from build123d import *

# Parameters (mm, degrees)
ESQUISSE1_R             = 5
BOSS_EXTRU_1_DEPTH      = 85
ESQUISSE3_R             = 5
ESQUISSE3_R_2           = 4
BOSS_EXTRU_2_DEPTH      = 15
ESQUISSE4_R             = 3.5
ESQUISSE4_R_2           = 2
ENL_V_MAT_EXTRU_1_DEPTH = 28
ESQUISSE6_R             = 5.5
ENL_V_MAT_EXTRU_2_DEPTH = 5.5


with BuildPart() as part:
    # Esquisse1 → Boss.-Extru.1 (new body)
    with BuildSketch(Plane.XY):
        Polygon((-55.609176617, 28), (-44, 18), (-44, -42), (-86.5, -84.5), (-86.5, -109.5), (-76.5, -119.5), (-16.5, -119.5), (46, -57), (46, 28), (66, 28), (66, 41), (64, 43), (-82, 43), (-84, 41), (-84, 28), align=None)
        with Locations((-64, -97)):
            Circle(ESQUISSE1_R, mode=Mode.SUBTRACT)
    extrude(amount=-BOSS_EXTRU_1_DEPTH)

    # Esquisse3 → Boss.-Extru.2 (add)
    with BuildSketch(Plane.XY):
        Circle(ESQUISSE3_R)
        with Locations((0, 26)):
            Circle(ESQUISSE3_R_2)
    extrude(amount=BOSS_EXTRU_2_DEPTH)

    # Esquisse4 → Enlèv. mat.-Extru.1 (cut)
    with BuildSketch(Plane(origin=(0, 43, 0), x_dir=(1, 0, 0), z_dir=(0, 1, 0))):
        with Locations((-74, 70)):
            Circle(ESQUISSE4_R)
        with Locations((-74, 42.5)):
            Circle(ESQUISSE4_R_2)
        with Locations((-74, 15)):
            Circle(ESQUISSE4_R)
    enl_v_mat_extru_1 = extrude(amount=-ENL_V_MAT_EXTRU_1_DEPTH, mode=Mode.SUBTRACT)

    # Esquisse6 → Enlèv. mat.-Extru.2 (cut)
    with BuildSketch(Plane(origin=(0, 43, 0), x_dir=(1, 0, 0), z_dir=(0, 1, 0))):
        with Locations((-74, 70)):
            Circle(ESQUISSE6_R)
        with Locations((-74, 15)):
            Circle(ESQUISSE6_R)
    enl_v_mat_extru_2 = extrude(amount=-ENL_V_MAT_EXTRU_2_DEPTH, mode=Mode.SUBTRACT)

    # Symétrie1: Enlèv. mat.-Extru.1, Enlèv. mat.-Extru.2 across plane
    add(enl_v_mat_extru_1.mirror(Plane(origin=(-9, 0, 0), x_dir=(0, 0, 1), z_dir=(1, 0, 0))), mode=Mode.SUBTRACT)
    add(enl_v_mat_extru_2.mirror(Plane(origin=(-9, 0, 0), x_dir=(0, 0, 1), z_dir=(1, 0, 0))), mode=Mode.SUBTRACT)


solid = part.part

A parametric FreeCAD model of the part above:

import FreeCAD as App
import Part
import Sketcher

V = App.Vector


def add_polygon(sketch, points):
    """Adds a closed chain of lines whose ends are joined by coincident constraints."""
    first, n = sketch.GeometryCount, len(points)
    for a, b in zip(points, points[1:] + points[:1]):
        sketch.addGeometry(Part.LineSegment(App.Vector(*a, 0), App.Vector(*b, 0)), False)
    for i in range(n):
        sketch.addConstraint(Sketcher.Constraint("Coincident", first + i, 2, first + (i + 1) % n, 1))

doc = App.newDocument("Part")
params = doc.addObject("Spreadsheet::Sheet", "Params")
for row, (alias, value) in enumerate([
    ("sketch1_diameter", "10 mm"),
    ("sketch1_width", "60 mm"),
    ("sketch1_width2", "20 mm"),
    ("sketch1_width3", "146 mm"),
    ("sketch1_height", "25 mm"),
    ("pad1_length", "85 mm"),
    ("sketch2_diameter", "10 mm"),
    ("sketch2_diameter2", "8 mm"),
    ("pad2_length", "15 mm"),
    ("sketch3_diameter", "7 mm"),
    ("sketch3_diameter2", "4 mm"),
    ("pocket1_length", "28 mm"),
    ("sketch4_diameter", "11 mm"),
    ("pocket2_length", "5.5 mm"),
], start=1):
    params.set(f"A{row}", alias)
    params.set(f"B{row}", "=" + value)
    params.setAlias(f"B{row}", alias)

body = doc.addObject("PartDesign::Body", "Body")

sketch1 = body.newObject("Sketcher::SketchObject", "Sketch")
sketch1.AttachmentSupport = (doc.getObject("XY_Plane"), [""])
sketch1.MapMode = "FlatFace"
add_polygon(sketch1, [(-55.609177, 28), (-44, 18), (-44, -42), (-86.5, -84.5), (-86.5, -109.5), (-76.5, -119.5), (-16.5, -119.5), (46, -57), (46, 28), (66, 28), (66, 41), (64, 43), (-82, 43), (-84, 41), (-84, 28)])
sketch1.addGeometry(Part.Circle(V(-64, -97, 0), V(0, 0, 1), 5), False)
sketch1.addConstraint([
    Sketcher.Constraint("Vertical", 1),
    Sketcher.Constraint("Vertical", 3),
    Sketcher.Constraint("Horizontal", 5),
    Sketcher.Constraint("Vertical", 7),
    Sketcher.Constraint("Horizontal", 8),
    Sketcher.Constraint("Vertical", 9),
    Sketcher.Constraint("Horizontal", 11),
    Sketcher.Constraint("Vertical", 13),
    Sketcher.Constraint("Horizontal", 14),
    Sketcher.Constraint("Perpendicular", 2, 4),
    Sketcher.Constraint("Perpendicular", 4, 6),
    Sketcher.Constraint("Perpendicular", 6, 10),
    Sketcher.Constraint("Perpendicular", 10, 12),
    Sketcher.Constraint("Horizontal", 9, 2, 12, 2),
    Sketcher.Constraint("Horizontal", 8, 2, 13, 2),
    Sketcher.Constraint("Equal", 5, 1),
    Sketcher.Constraint("Equal", 10, 12),
    Sketcher.Constraint("Diameter", 15, 10.0),
    Sketcher.Constraint("DistanceX", 5, 1, 5, 2, 60.0),
    Sketcher.Constraint("DistanceX", 8, 1, 8, 2, 20.0),
    Sketcher.Constraint("DistanceX", 11, 2, 11, 1, 146.0),
    Sketcher.Constraint("DistanceY", 3, 2, 3, 1, 25.0),
    Sketcher.Constraint("DistanceY", 7, 1, 7, 2, 85.0),
    Sketcher.Constraint("DistanceY", 9, 1, 9, 2, 13.0),
    Sketcher.Constraint("DistanceX", 15, 3, -1, 1, 64.0),
    Sketcher.Constraint("DistanceY", 15, 3, -1, 1, 97.0),
    Sketcher.Constraint("DistanceX", 0, 2, -1, 1, 44.0),
    Sketcher.Constraint("DistanceY", -1, 1, 0, 2, 18.0),
    Sketcher.Constraint("DistanceX", -1, 1, 6, 2, 46.0),
    Sketcher.Constraint("DistanceY", 6, 2, -1, 1, 57.0),
    Sketcher.Constraint("DistanceX", -1, 1, 10, 2, 64.0),
    Sketcher.Constraint("DistanceX", 2, 2, -1, 1, 86.5),
    Sketcher.Constraint("DistanceX", 14, 1, 14, 2, 28.390823),
])
sketch1.setExpression("Constraints[32]", "Params.sketch1_diameter")
sketch1.setExpression("Constraints[33]", "Params.sketch1_width")
sketch1.setExpression("Constraints[34]", "Params.sketch1_width2")
sketch1.setExpression("Constraints[35]", "Params.sketch1_width3")
sketch1.setExpression("Constraints[36]", "Params.sketch1_height")
pad1 = body.newObject("PartDesign::Pad", "Pad")
pad1.Profile = sketch1
pad1.setExpression("Length", "Params.pad1_length")
pad1.Reversed = True

sketch2 = body.newObject("Sketcher::SketchObject", "Sketch001")
sketch2.AttachmentSupport = (doc.getObject("XY_Plane"), [""])
sketch2.MapMode = "FlatFace"
sketch2.addGeometry([
    Part.Circle(V(0, 0, 0), V(0, 0, 1), 5),
    Part.Circle(V(0, 26, 0), V(0, 0, 1), 4),
], False)
sketch2.addConstraint([
    Sketcher.Constraint("Coincident", 0, 3, -1, 1),
    Sketcher.Constraint("PointOnObject", 1, 3, -2),
    Sketcher.Constraint("Diameter", 0, 10.0),
    Sketcher.Constraint("Diameter", 1, 8.0),
    Sketcher.Constraint("DistanceY", -1, 1, 1, 3, 26.0),
])
sketch2.setExpression("Constraints[2]", "Params.sketch2_diameter")
sketch2.setExpression("Constraints[3]", "Params.sketch2_diameter2")
pad2 = body.newObject("PartDesign::Pad", "Pad001")
pad2.Profile = sketch2
pad2.setExpression("Length", "Params.pad2_length")

sketch3 = body.newObject("Sketcher::SketchObject", "Sketch002")
sketch3.AttachmentSupport = (doc.getObject("XZ_Plane"), [""])
sketch3.MapMode = "FlatFace"
sketch3.AttachmentOffset = App.Placement(V(0, 0, -43), App.Rotation())
sketch3.addGeometry([
    Part.Circle(V(-74, -70, 0), V(0, 0, 1), 3.5),
    Part.Circle(V(-74, -42.5, 0), V(0, 0, 1), 2),
    Part.Circle(V(-74, -15, 0), V(0, 0, 1), 3.5),
], False)
sketch3.addConstraint([
    Sketcher.Constraint("Equal", 0, 2),
    Sketcher.Constraint("Vertical", 0, 3, 1, 3),
    Sketcher.Constraint("Vertical", 1, 3, 2, 3),
    Sketcher.Constraint("Diameter", 0, 7.0),
    Sketcher.Constraint("Diameter", 1, 4.0),
    Sketcher.Constraint("DistanceX", 0, 3, -1, 1, 74.0),
    Sketcher.Constraint("DistanceY", 0, 3, -1, 1, 70.0),
    Sketcher.Constraint("DistanceY", 2, 3, -1, 1, 15.0),
    Sketcher.Constraint("DistanceY", 1, 3, -1, 1, 42.5),
])
sketch3.setExpression("Constraints[3]", "Params.sketch3_diameter")
sketch3.setExpression("Constraints[4]", "Params.sketch3_diameter2")
pocket1 = body.newObject("PartDesign::Pocket", "Pocket")
pocket1.Profile = sketch3
pocket1.setExpression("Length", "Params.pocket1_length")
pocket1.Reversed = True

sketch4 = body.newObject("Sketcher::SketchObject", "Sketch003")
sketch4.AttachmentSupport = (doc.getObject("XZ_Plane"), [""])
sketch4.MapMode = "FlatFace"
sketch4.AttachmentOffset = App.Placement(V(0, 0, -43), App.Rotation())
sketch4.addGeometry([
    Part.Circle(V(-74, -70, 0), V(0, 0, 1), 5.5),
    Part.Circle(V(-74, -15, 0), V(0, 0, 1), 5.5),
], False)
sketch4.addConstraint([
    Sketcher.Constraint("Equal", 0, 1),
    Sketcher.Constraint("Vertical", 0, 3, 1, 3),
    Sketcher.Constraint("Diameter", 0, 11.0),
    Sketcher.Constraint("DistanceX", 0, 3, -1, 1, 74.0),
    Sketcher.Constraint("DistanceY", 0, 3, -1, 1, 70.0),
    Sketcher.Constraint("DistanceY", 1, 3, -1, 1, 15.0),
])
sketch4.setExpression("Constraints[2]", "Params.sketch4_diameter")
pocket2 = body.newObject("PartDesign::Pocket", "Pocket001")
pocket2.Profile = sketch4
pocket2.setExpression("Length", "Params.pocket2_length")
pocket2.Reversed = True
doc.recompute()

datumplane = body.newObject("PartDesign::Plane", "DatumPlane")
datumplane.AttachmentSupport = (doc.getObject("YZ_Plane"), [""])
datumplane.MapMode = "FlatFace"
datumplane.AttachmentOffset = App.Placement(V(0, 0, -9), App.Rotation())
mirrored = body.newObject("PartDesign::Mirrored", "Mirrored")
mirrored.Originals = [pocket1, pocket2]
mirrored.MirrorPlane = (datumplane, [""])
body.Tip = mirrored

doc.recompute()
